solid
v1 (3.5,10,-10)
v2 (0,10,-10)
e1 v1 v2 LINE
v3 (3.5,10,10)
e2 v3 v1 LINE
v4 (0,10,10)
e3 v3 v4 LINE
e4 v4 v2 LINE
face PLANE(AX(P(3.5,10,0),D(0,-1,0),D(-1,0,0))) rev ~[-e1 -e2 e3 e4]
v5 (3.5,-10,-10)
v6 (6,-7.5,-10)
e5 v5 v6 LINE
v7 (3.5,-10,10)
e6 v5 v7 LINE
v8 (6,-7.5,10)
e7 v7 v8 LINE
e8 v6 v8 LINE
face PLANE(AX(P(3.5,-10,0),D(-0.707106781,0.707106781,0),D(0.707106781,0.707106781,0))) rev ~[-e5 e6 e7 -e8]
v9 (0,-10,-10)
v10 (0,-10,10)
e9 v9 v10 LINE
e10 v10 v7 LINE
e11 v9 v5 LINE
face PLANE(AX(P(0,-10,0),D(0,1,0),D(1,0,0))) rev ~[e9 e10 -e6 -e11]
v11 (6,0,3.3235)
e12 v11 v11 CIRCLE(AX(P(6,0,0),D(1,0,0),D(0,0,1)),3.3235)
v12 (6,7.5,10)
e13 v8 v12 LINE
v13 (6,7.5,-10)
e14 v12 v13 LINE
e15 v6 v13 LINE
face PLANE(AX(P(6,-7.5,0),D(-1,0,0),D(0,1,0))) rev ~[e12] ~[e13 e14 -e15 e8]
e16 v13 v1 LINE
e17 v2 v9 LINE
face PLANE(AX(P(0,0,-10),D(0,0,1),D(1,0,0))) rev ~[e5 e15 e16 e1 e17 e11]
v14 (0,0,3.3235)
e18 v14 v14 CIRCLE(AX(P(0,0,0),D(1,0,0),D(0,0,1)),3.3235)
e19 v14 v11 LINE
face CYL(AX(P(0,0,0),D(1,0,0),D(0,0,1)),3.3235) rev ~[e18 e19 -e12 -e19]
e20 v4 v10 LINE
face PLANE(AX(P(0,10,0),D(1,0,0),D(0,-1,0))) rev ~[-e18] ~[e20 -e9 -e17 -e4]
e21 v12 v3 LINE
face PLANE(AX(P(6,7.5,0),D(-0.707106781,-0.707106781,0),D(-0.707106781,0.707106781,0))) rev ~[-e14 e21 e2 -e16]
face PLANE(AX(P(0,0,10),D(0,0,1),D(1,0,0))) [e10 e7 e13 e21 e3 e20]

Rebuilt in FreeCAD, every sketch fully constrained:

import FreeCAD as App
import Part
import Sketcher

V = App.Vector
Q = App.Units.Quantity

doc = App.newDocument("Part")
params = doc.addObject("Spreadsheet::Sheet", "Params")
for row, (alias, value) in enumerate([
    ("sketch1_height", "20 mm"),
    ("sketch1_height2", "15 mm"),
    ("pad1_length", "20 mm"),
    ("hole_diameter", "6.647 mm"),
], start=1):
    params.set(f"A{row}", alias)
    params.set(f"B{row}", "=" + value)
    params.setAlias(f"B{row}", alias)

body = doc.addObject("PartDesign::Body", "Body")

# Sketch on XY plane
sketch1 = body.newObject("Sketcher::SketchObject", "Sketch")
sketch1.AttachmentSupport = (doc.getObject("XY_Plane"), [""])
sketch1.MapMode = "FlatFace"
sketch1.addGeometry([
    Part.LineSegment(V(0, 10, 0), V(0, -10, 0)),  # 0
    Part.LineSegment(V(0, -10, 0), V(3.5, -10, 0)),  # 1
    Part.LineSegment(V(3.5, -10, 0), V(6, -7.5, 0)),  # 2
    Part.LineSegment(V(6, -7.5, 0), V(6, 7.5, 0)),  # 3
    Part.LineSegment(V(6, 7.5, 0), V(3.5, 10, 0)),  # 4
    Part.LineSegment(V(3.5, 10, 0), V(0, 10, 0)),  # 5
], False)
sketch1.addConstraint([
    Sketcher.Constraint("Coincident", 0, 2, 1, 1),
    Sketcher.Constraint("Coincident", 1, 2, 2, 1),
    Sketcher.Constraint("Coincident", 2, 2, 3, 1),
    Sketcher.Constraint("Coincident", 3, 2, 4, 1),
    Sketcher.Constraint("Coincident", 4, 2, 5, 1),
    Sketcher.Constraint("Coincident", 5, 2, 0, 1),
    Sketcher.Constraint("Vertical", 0),
    Sketcher.Constraint("Horizontal", 1),
    Sketcher.Constraint("Vertical", 3),
    Sketcher.Constraint("Horizontal", 5),
    Sketcher.Constraint("Symmetric", 0, 2, 5, 2, -1, 1),
    Sketcher.Constraint("Perpendicular", 2, 4),
    Sketcher.Constraint("Vertical", 1, 2, 4, 2),
    Sketcher.Constraint("Equal", 2, 4),
    Sketcher.Constraint("DistanceY", 0, 2, 0, 1, Q("20 mm")),
    Sketcher.Constraint("DistanceY", 3, 1, 3, 2, Q("15 mm")),
    Sketcher.Constraint("DistanceX", -1, 1, 2, 2, Q("6 mm")),
])
sketch1.setExpression("Constraints[14]", "Params.sketch1_height")
sketch1.setExpression("Constraints[15]", "Params.sketch1_height2")
pad1 = body.newObject("PartDesign::Pad", "Pad")
pad1.Profile = sketch1
pad1.setExpression("Length", "Params.pad1_length")
pad1.Midplane = True

# Sketch on YZ plane
sketch2 = body.newObject("Sketcher::SketchObject", "Sketch001")
sketch2.AttachmentSupport = (doc.getObject("YZ_Plane"), [""])
sketch2.MapMode = "FlatFace"
sketch2.addGeometry(Part.Circle(V(0, 0, 0), V(0, 0, 1), 3.3235), False)
sketch2.addConstraint([
    Sketcher.Constraint("Coincident", 0, 3, -1, 1),
    Sketcher.Constraint("Diameter", 0, Q("6.647 mm")),
])
doc.recompute()
hole = body.newObject("PartDesign::Hole", "Hole")
hole.Profile = sketch2
hole.ThreadType = "None"
hole.setExpression("Diameter", "Params.hole_diameter")
hole.DepthType = "ThroughAll"
hole.Reversed = True

doc.recompute()
